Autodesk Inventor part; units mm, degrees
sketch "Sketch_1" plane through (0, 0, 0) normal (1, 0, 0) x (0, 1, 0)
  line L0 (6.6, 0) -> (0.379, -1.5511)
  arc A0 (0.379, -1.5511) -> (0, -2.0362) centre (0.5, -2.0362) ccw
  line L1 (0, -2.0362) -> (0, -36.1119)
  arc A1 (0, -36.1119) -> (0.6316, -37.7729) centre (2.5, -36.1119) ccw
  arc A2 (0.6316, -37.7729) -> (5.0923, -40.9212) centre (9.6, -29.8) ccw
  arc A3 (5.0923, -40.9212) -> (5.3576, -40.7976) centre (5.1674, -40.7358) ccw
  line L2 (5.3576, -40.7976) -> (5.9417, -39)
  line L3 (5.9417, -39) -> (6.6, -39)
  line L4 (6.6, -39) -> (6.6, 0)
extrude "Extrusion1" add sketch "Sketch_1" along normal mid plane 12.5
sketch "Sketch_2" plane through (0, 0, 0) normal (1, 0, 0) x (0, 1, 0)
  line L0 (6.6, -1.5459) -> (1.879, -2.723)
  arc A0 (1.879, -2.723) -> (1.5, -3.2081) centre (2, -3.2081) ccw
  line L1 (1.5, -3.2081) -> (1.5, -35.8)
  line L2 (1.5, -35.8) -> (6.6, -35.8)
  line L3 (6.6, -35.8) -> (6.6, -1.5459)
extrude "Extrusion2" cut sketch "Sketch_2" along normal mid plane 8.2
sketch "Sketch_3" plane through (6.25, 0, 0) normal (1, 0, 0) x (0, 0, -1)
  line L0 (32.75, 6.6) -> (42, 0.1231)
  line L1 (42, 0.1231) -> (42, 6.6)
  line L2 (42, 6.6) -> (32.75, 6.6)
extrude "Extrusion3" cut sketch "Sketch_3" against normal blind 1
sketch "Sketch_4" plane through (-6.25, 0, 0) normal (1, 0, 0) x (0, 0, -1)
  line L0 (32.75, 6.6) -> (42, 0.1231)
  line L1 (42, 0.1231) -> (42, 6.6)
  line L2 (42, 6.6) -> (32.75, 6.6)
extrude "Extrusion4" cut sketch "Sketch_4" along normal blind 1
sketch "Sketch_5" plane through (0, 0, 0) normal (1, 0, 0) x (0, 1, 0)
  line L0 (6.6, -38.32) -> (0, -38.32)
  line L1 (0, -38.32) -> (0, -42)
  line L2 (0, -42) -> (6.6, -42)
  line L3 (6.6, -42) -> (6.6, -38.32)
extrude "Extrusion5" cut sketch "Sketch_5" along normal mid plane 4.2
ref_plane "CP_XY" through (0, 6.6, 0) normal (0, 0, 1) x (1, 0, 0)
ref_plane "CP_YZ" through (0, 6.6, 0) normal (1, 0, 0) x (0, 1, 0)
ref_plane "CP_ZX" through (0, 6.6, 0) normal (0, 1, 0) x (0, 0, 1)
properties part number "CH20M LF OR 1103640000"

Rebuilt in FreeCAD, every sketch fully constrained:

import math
import FreeCAD as App
import Part
import Sketcher
Q = App.Units.Quantity

doc = App.newDocument("Part")
body = doc.addObject("PartDesign::Body", "Body")

# Sketch on YZ plane
sketch1 = body.newObject("Sketcher::SketchObject", "Sketch")
sketch1.AttachmentSupport = (doc.getObject("YZ_Plane"), [""])
sketch1.MapMode = "FlatFace"
sketch1.addGeometry(Part.LineSegment(App.Vector(6.6, -39, 0), App.Vector(6.6, 0, 0)), False)
sketch1.addGeometry(Part.LineSegment(App.Vector(6.6, 0, 0), App.Vector(0.379, -1.5511, 0)), False)
sketch1.addGeometry(Part.ArcOfCircle(Part.Circle(App.Vector(0.5, -2.0362, 0), App.Vector(0, 0, 1), 0.499963), math.radians(104.005669), math.radians(180)), False)
sketch1.addGeometry(Part.LineSegment(App.Vector(0, -2.0362, 0), App.Vector(0, -36.1119, 0)), False)
sketch1.addGeometry(Part.ArcOfCircle(Part.Circle(App.Vector(2.5, -36.1119, 0), App.Vector(0, 0, 1), 2.5), math.radians(180), math.radians(221.636965)), False)
sketch1.addGeometry(Part.ArcOfCircle(Part.Circle(App.Vector(9.6, -29.8, 0), App.Vector(0, 0, 1), 11.999972), math.radians(-138.362932), math.radians(-112.063941)), False)
sketch1.addGeometry(Part.ArcOfCircle(Part.Circle(App.Vector(5.1674, -40.7358, 0), App.Vector(0, 0, 1), 0.200033), math.radians(-112.051399), math.radians(-18.000075)), False)
sketch1.addGeometry(Part.LineSegment(App.Vector(5.3576, -40.7976, 0), App.Vector(5.9417, -39, 0)), False)
sketch1.addGeometry(Part.LineSegment(App.Vector(5.9417, -39, 0), App.Vector(6.6, -39, 0)), False)
sketch1.addConstraint(Sketcher.Constraint("Coincident", 0, 2, 1, 1))
sketch1.addConstraint(Sketcher.Constraint("Tangent", 1, 2, 2, 1))
sketch1.addConstraint(Sketcher.Constraint("Tangent", 2, 2, 3, 1))
sketch1.addConstraint(Sketcher.Constraint("Tangent", 3, 2, 4, 1))
sketch1.addConstraint(Sketcher.Constraint("Tangent", 4, 2, 5, 1))
sketch1.addConstraint(Sketcher.Constraint("Tangent", 5, 2, 6, 1))
sketch1.addConstraint(Sketcher.Constraint("Tangent", 6, 2, 7, 1))
sketch1.addConstraint(Sketcher.Constraint("Coincident", 7, 2, 8, 1))
sketch1.addConstraint(Sketcher.Constraint("Coincident", 8, 2, 0, 1))
sketch1.addConstraint(Sketcher.Constraint("Vertical", 0))
sketch1.addConstraint(Sketcher.Constraint("Vertical", 3))
sketch1.addConstraint(Sketcher.Constraint("Horizontal", 8))
sketch1.addConstraint(Sketcher.Constraint("PointOnObject", 0, 2, -1))
sketch1.addConstraint(Sketcher.Constraint("PointOnObject", 2, 2, -2))
sketch1.addConstraint(Sketcher.Constraint("Radius", 5, Q("12 mm")))
sketch1.addConstraint(Sketcher.Constraint("Radius", 2, Q("0.5 mm")))
sketch1.addConstraint(Sketcher.Constraint("Radius", 4, Q("2.5 mm")))
sketch1.addConstraint(Sketcher.Constraint("Radius", 6, Q("0.2 mm")))
sketch1.addConstraint(Sketcher.Constraint("DistanceY", 0, 1, 0, 2, Q("39 mm")))
sketch1.addConstraint(Sketcher.Constraint("Angle", 1, Q("-165.9997 deg")))
sketch1.addConstraint(Sketcher.Constraint("Angle", 7, Q("71.9993 deg")))
sketch1.addConstraint(Sketcher.Constraint("DistanceX", 0, 2, 5, 3, Q("3 mm")))
sketch1.addConstraint(Sketcher.Constraint("DistanceX", -1, 1, 5, 3, Q("9.6 mm")))
sketch1.addConstraint(Sketcher.Constraint("DistanceY", 5, 3, -1, 1, Q("29.8 mm")))
sketch1.addConstraint(Sketcher.Constraint("Distance", 7, Q("1.89 mm")))
pad1 = body.newObject("PartDesign::Pad", "Pad")
pad1.Profile = sketch1
pad1.Length = 12.5
pad1.Midplane = True

# Sketch on YZ plane
sketch2 = body.newObject("Sketcher::SketchObject", "Sketch001")
sketch2.AttachmentSupport = (doc.getObject("YZ_Plane"), [""])
sketch2.MapMode = "FlatFace"
sketch2.addGeometry(Part.LineSegment(App.Vector(6.6, -35.8, 0), App.Vector(6.6, -1.5459, 0)), False)
sketch2.addGeometry(Part.LineSegment(App.Vector(6.6, -1.5459, 0), App.Vector(1.879, -2.723, 0)), False)
sketch2.addGeometry(Part.ArcOfCircle(Part.Circle(App.Vector(2, -3.2081, 0), App.Vector(0, 0, 1), 0.499963), math.radians(104.005669), math.radians(180)), False)
sketch2.addGeometry(Part.LineSegment(App.Vector(1.5, -3.2081, 0), App.Vector(1.5, -35.8, 0)), False)
sketch2.addGeometry(Part.LineSegment(App.Vector(1.5, -35.8, 0), App.Vector(6.6, -35.8, 0)), False)
sketch2.addConstraint(Sketcher.Constraint("Coincident", 0, 2, 1, 1))
sketch2.addConstraint(Sketcher.Constraint("Tangent", 1, 2, 2, 1))
sketch2.addConstraint(Sketcher.Constraint("Tangent", 2, 2, 3, 1))
sketch2.addConstraint(Sketcher.Constraint("Coincident", 3, 2, 4, 1))
sketch2.addConstraint(Sketcher.Constraint("Coincident", 4, 2, 0, 1))
sketch2.addConstraint(Sketcher.Constraint("Vertical", 0))
sketch2.addConstraint(Sketcher.Constraint("Vertical", 3))
sketch2.addConstraint(Sketcher.Constraint("Horizontal", 4))
sketch2.addConstraint(Sketcher.Constraint("Radius", 2, Q("0.5 mm")))
sketch2.addConstraint(Sketcher.Constraint("Angle", 1, Q("-165.9997 deg")))
sketch2.addConstraint(Sketcher.Constraint("DistanceX", 4, 1, 4, 2, Q("5.1 mm")))
sketch2.addConstraint(Sketcher.Constraint("DistanceX", -1, 1, 2, 3, Q("2 mm")))
sketch2.addConstraint(Sketcher.Constraint("DistanceY", 3, 2, -1, 1, Q("35.8 mm")))
sketch2.addConstraint(Sketcher.Constraint("DistanceY", 0, 1, 0, 2, Q("34.254 mm")))
pocket1 = body.newObject("PartDesign::Pocket", "Pocket")
pocket1.Profile = sketch2
pocket1.Length = 8.2
pocket1.Midplane = True

# Sketch on YZ plane
sketch3 = body.newObject("Sketcher::SketchObject", "Sketch002")
sketch3.AttachmentSupport = (doc.getObject("YZ_Plane"), [""])
sketch3.MapMode = "FlatFace"
sketch3.AttachmentOffset = App.Placement(App.Vector(0, 0, 6.25), App.Rotation())
sketch3.addGeometry(Part.LineSegment(App.Vector(6.6, -42, 0), App.Vector(6.6, -32.75, 0)), False)
sketch3.addGeometry(Part.LineSegment(App.Vector(6.6, -32.75, 0), App.Vector(0.1231, -42, 0)), False)
sketch3.addGeometry(Part.LineSegment(App.Vector(0.1231, -42, 0), App.Vector(6.6, -42, 0)), False)
sketch3.addConstraint(Sketcher.Constraint("Coincident", 0, 2, 1, 1))
sketch3.addConstraint(Sketcher.Constraint("Coincident", 1, 2, 2, 1))
sketch3.addConstraint(Sketcher.Constraint("Coincident", 2, 2, 0, 1))
sketch3.addConstraint(Sketcher.Constraint("Vertical", 0))
sketch3.addConstraint(Sketcher.Constraint("Horizontal", 2))
sketch3.addConstraint(Sketcher.Constraint("Angle", 1, Q("-125 deg")))
sketch3.addConstraint(Sketcher.Constraint("DistanceY", 1, 2, -1, 1, Q("42 mm")))
sketch3.addConstraint(Sketcher.Constraint("DistanceY", 0, 1, 0, 2, Q("9.25 mm")))
sketch3.addConstraint(Sketcher.Constraint("DistanceX", -1, 1, 0, 2, Q("6.6 mm")))
pocket2 = body.newObject("PartDesign::Pocket", "Pocket001")
pocket2.Profile = sketch3
pocket2.Length = 1

# Sketch on YZ plane
sketch4 = body.newObject("Sketcher::SketchObject", "Sketch003")
sketch4.AttachmentSupport = (doc.getObject("YZ_Plane"), [""])
sketch4.MapMode = "FlatFace"
sketch4.AttachmentOffset = App.Placement(App.Vector(0, 0, -6.25), App.Rotation())
sketch4.addGeometry(Part.LineSegment(App.Vector(6.6, -42, 0), App.Vector(6.6, -32.75, 0)), False)
sketch4.addGeometry(Part.LineSegment(App.Vector(6.6, -32.75, 0), App.Vector(0.1231, -42, 0)), False)
sketch4.addGeometry(Part.LineSegment(App.Vector(0.1231, -42, 0), App.Vector(6.6, -42, 0)), False)
sketch4.addConstraint(Sketcher.Constraint("Coincident", 0, 2, 1, 1))
sketch4.addConstraint(Sketcher.Constraint("Coincident", 1, 2, 2, 1))
sketch4.addConstraint(Sketcher.Constraint("Coincident", 2, 2, 0, 1))
sketch4.addConstraint(Sketcher.Constraint("Vertical", 0))
sketch4.addConstraint(Sketcher.Constraint("Horizontal", 2))
sketch4.addConstraint(Sketcher.Constraint("Angle", 1, Q("-125 deg")))
sketch4.addConstraint(Sketcher.Constraint("DistanceY", 1, 2, -1, 1, Q("42 mm")))
sketch4.addConstraint(Sketcher.Constraint("DistanceY", 0, 1, 0, 2, Q("9.25 mm")))
sketch4.addConstraint(Sketcher.Constraint("DistanceX", -1, 1, 0, 2, Q("6.6 mm")))
pocket3 = body.newObject("PartDesign::Pocket", "Pocket002")
pocket3.Profile = sketch4
pocket3.Length = 1
pocket3.Reversed = True

# Sketch on YZ plane
sketch5 = body.newObject("Sketcher::SketchObject", "Sketch004")
sketch5.AttachmentSupport = (doc.getObject("YZ_Plane"), [""])
sketch5.MapMode = "FlatFace"
sketch5.addGeometry(Part.LineSegment(App.Vector(6.6, -42, 0), App.Vector(6.6, -38.32, 0)), False)
sketch5.addGeometry(Part.LineSegment(App.Vector(6.6, -38.32, 0), App.Vector(0, -38.32, 0)), False)
sketch5.addGeometry(Part.LineSegment(App.Vector(0, -38.32, 0), App.Vector(0, -42, 0)), False)
sketch5.addGeometry(Part.LineSegment(App.Vector(0, -42, 0), App.Vector(6.6, -42, 0)), False)
sketch5.addConstraint(Sketcher.Constraint("Coincident", 0, 2, 1, 1))
sketch5.addConstraint(Sketcher.Constraint("Coincident", 1, 2, 2, 1))
sketch5.addConstraint(Sketcher.Constraint("Coincident", 2, 2, 3, 1))
sketch5.addConstraint(Sketcher.Constraint("Coincident", 3, 2, 0, 1))
sketch5.addConstraint(Sketcher.Constraint("Vertical", 0))
sketch5.addConstraint(Sketcher.Constraint("Horizontal", 1))
sketch5.addConstraint(Sketcher.Constraint("Vertical", 2))
sketch5.addConstraint(Sketcher.Constraint("Horizontal", 3))
sketch5.addConstraint(Sketcher.Constraint("PointOnObject", 1, 2, -2))
sketch5.addConstraint(Sketcher.Constraint("DistanceX", 1, 2, 1, 1, Q("6.6 mm")))
sketch5.addConstraint(Sketcher.Constraint("DistanceY", 2, 2, -1, 1, Q("42 mm")))
sketch5.addConstraint(Sketcher.Constraint("DistanceY", 0, 1, 0, 2, Q("3.68 mm")))
pocket4 = body.newObject("PartDesign::Pocket", "Pocket003")
pocket4.Profile = sketch5
pocket4.Length = 4.2
pocket4.Midplane = True

doc.recompute()
